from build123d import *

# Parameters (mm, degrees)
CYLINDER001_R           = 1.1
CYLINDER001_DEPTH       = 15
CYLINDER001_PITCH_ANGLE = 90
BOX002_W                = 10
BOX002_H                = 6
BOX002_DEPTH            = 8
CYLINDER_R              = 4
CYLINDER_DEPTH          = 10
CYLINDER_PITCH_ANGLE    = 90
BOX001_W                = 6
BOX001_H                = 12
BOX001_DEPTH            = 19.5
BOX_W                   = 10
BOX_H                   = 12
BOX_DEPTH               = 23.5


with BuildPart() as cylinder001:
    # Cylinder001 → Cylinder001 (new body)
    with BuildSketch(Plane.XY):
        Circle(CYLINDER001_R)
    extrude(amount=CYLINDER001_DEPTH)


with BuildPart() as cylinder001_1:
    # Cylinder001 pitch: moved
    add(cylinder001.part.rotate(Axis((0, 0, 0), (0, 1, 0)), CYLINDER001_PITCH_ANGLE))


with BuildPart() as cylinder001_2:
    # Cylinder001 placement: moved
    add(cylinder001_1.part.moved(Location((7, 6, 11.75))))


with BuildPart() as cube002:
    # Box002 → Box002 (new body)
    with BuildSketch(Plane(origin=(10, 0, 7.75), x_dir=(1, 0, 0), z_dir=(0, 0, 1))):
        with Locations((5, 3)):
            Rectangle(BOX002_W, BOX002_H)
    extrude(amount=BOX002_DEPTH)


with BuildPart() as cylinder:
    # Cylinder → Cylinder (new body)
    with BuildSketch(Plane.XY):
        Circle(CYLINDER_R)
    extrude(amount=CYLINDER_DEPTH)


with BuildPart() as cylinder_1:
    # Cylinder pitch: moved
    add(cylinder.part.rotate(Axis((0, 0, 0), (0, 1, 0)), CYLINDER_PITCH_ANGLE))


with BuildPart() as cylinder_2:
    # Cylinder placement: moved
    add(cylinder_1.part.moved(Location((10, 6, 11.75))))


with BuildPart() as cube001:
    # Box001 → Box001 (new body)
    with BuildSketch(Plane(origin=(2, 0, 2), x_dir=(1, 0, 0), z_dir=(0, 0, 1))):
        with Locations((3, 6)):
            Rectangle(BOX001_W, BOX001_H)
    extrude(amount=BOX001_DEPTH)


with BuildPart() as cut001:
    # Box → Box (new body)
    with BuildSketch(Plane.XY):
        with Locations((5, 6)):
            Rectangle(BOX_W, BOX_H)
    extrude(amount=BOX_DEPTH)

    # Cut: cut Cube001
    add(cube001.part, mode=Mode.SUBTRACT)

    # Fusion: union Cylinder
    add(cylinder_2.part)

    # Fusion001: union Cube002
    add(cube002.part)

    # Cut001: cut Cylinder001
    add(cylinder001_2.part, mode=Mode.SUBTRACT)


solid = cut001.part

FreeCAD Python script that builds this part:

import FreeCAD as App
import Part
import Sketcher

V = App.Vector
Q = App.Units.Quantity

doc = App.newDocument("Part")
body = doc.addObject("PartDesign::Body", "Body")

sketch1 = doc.addObject("Sketcher::SketchObject", "Sketch")
body.addObject(sketch1)
sketch1.AttachmentSupport = (doc.XY_Plane, [""])
sketch1.MapMode = "FlatFace"
sketch1.addGeometry(Part.Circle(V(0, 0, 0), V(0, 0, 1), 1.1), False)
sketch1.addConstraint(Sketcher.Constraint("Coincident", 0, 3, -1, 1))
sketch1.addConstraint(Sketcher.Constraint("Diameter", 0, Q("2.2 mm")))
pad1 = doc.addObject("PartDesign::Pad", "Pad")
body.addObject(pad1)
pad1.Profile = sketch1
pad1.Length = 15
body2 = doc.addObject("PartDesign::Body", "Body001")
doc.recompute()

body.Placement = App.Placement(V(0, 0, 0), App.Rotation(V(0, 1, 0), 90))
boolean = doc.addObject("PartDesign::Boolean", "Boolean")
body2.addObject(boolean)
boolean.Type = "Fuse"
boolean.addObjects([body])
body3 = doc.addObject("PartDesign::Body", "Body002")
doc.recompute()

body2.Placement = App.Placement(V(7, 6, 11.75), App.Rotation(V(0, 0, 1), 0))
boolean2 = doc.addObject("PartDesign::Boolean", "Boolean001")
body3.addObject(boolean2)
boolean2.Type = "Fuse"
boolean2.addObjects([body2])
body4 = doc.addObject("PartDesign::Body", "Body003")

sketch2 = doc.addObject("Sketcher::SketchObject", "Sketch001")
body4.addObject(sketch2)
sketch2.AttachmentSupport = (doc.getObject("XY_Plane003"), [""])
sketch2.MapMode = "FlatFace"
sketch2.AttachmentOffset = App.Placement(V(0, 0, 7.75), App.Rotation())
sketch2.addGeometry(Part.LineSegment(V(10, 6, 0), V(10, 0, 0)), False)
sketch2.addGeometry(Part.LineSegment(V(10, 0, 0), V(20, 0, 0)), False)
sketch2.addGeometry(Part.LineSegment(V(20, 0, 0), V(20, 6, 0)), False)
sketch2.addGeometry(Part.LineSegment(V(20, 6, 0), V(10, 6, 0)), False)
sketch2.addConstraint(Sketcher.Constraint("Coincident", 0, 2, 1, 1))
sketch2.addConstraint(Sketcher.Constraint("Coincident", 1, 2, 2, 1))
sketch2.addConstraint(Sketcher.Constraint("Coincident", 2, 2, 3, 1))
sketch2.addConstraint(Sketcher.Constraint("Coincident", 3, 2, 0, 1))
sketch2.addConstraint(Sketcher.Constraint("Vertical", 0))
sketch2.addConstraint(Sketcher.Constraint("Horizontal", 1))
sketch2.addConstraint(Sketcher.Constraint("Vertical", 2))
sketch2.addConstraint(Sketcher.Constraint("Horizontal", 3))
sketch2.addConstraint(Sketcher.Constraint("PointOnObject", 0, 2, -1))
sketch2.addConstraint(Sketcher.Constraint("DistanceX", 1, 1, 1, 2, Q("10 mm")))
sketch2.addConstraint(Sketcher.Constraint("DistanceY", 0, 2, 0, 1, Q("6 mm")))
sketch2.addConstraint(Sketcher.Constraint("DistanceX", -1, 1, 0, 2, Q("10 mm")))
pad2 = doc.addObject("PartDesign::Pad", "Pad001")
body4.addObject(pad2)
pad2.Profile = sketch2
pad2.Length = 8
body5 = doc.addObject("PartDesign::Body", "Body004")

sketch3 = doc.addObject("Sketcher::SketchObject", "Sketch002")
body5.addObject(sketch3)
sketch3.AttachmentSupport = (doc.getObject("XY_Plane004"), [""])
sketch3.MapMode = "FlatFace"
sketch3.addGeometry(Part.Circle(V(0, 0, 0), V(0, 0, 1), 4), False)
sketch3.addConstraint(Sketcher.Constraint("Coincident", 0, 3, -1, 1))
sketch3.addConstraint(Sketcher.Constraint("Diameter", 0, Q("8 mm")))
pad3 = doc.addObject("PartDesign::Pad", "Pad002")
body5.addObject(pad3)
pad3.Profile = sketch3
pad3.Length = 10
body6 = doc.addObject("PartDesign::Body", "Body005")
doc.recompute()

body5.Placement = App.Placement(V(0, 0, 0), App.Rotation(V(0, 1, 0), 90))
boolean3 = doc.addObject("PartDesign::Boolean", "Boolean002")
body6.addObject(boolean3)
boolean3.Type = "Fuse"
boolean3.addObjects([body5])
body7 = doc.addObject("PartDesign::Body", "Body006")
doc.recompute()

body6.Placement = App.Placement(V(10, 6, 11.75), App.Rotation(V(0, 0, 1), 0))
boolean4 = doc.addObject("PartDesign::Boolean", "Boolean003")
body7.addObject(boolean4)
boolean4.Type = "Fuse"
boolean4.addObjects([body6])
body8 = doc.addObject("PartDesign::Body", "Body007")

sketch4 = doc.addObject("Sketcher::SketchObject", "Sketch003")
body8.addObject(sketch4)
sketch4.AttachmentSupport = (doc.getObject("XY_Plane007"), [""])
sketch4.MapMode = "FlatFace"
sketch4.AttachmentOffset = App.Placement(V(0, 0, 2), App.Rotation())
sketch4.addGeometry(Part.LineSegment(V(2, 12, 0), V(2, 0, 0)), False)
sketch4.addGeometry(Part.LineSegment(V(2, 0, 0), V(8, 0, 0)), False)
sketch4.addGeometry(Part.LineSegment(V(8, 0, 0), V(8, 12, 0)), False)
sketch4.addGeometry(Part.LineSegment(V(8, 12, 0), V(2, 12, 0)), False)
sketch4.addConstraint(Sketcher.Constraint("Coincident", 0, 2, 1, 1))
sketch4.addConstraint(Sketcher.Constraint("Coincident", 1, 2, 2, 1))
sketch4.addConstraint(Sketcher.Constraint("Coincident", 2, 2, 3, 1))
sketch4.addConstraint(Sketcher.Constraint("Coincident", 3, 2, 0, 1))
sketch4.addConstraint(Sketcher.Constraint("Vertical", 0))
sketch4.addConstraint(Sketcher.Constraint("Horizontal", 1))
sketch4.addConstraint(Sketcher.Constraint("Vertical", 2))
sketch4.addConstraint(Sketcher.Constraint("Horizontal", 3))
sketch4.addConstraint(Sketcher.Constraint("PointOnObject", 0, 2, -1))
sketch4.addConstraint(Sketcher.Constraint("DistanceX", 1, 1, 1, 2, Q("6 mm")))
sketch4.addConstraint(Sketcher.Constraint("DistanceY", 0, 2, 0, 1, Q("12 mm")))
sketch4.addConstraint(Sketcher.Constraint("DistanceX", -1, 1, 0, 2, Q("2 mm")))
pad4 = doc.addObject("PartDesign::Pad", "Pad003")
body8.addObject(pad4)
pad4.Profile = sketch4
pad4.Length = 19.5
body9 = doc.addObject("PartDesign::Body", "Body008")

sketch5 = doc.addObject("Sketcher::SketchObject", "Sketch004")
body9.addObject(sketch5)
sketch5.AttachmentSupport = (doc.getObject("XY_Plane008"), [""])
sketch5.MapMode = "FlatFace"
sketch5.addGeometry(Part.LineSegment(V(0, 12, 0), V(0, 0, 0)), False)
sketch5.addGeometry(Part.LineSegment(V(0, 0, 0), V(10, 0, 0)), False)
sketch5.addGeometry(Part.LineSegment(V(10, 0, 0), V(10, 12, 0)), False)
sketch5.addGeometry(Part.LineSegment(V(10, 12, 0), V(0, 12, 0)), False)
sketch5.addConstraint(Sketcher.Constraint("Coincident", 0, 2, 1, 1))
sketch5.addConstraint(Sketcher.Constraint("Coincident", 1, 2, 2, 1))
sketch5.addConstraint(Sketcher.Constraint("Coincident", 2, 2, 3, 1))
sketch5.addConstraint(Sketcher.Constraint("Coincident", 3, 2, 0, 1))
sketch5.addConstraint(Sketcher.Constraint("Vertical", 0))
sketch5.addConstraint(Sketcher.Constraint("Horizontal", 1))
sketch5.addConstraint(Sketcher.Constraint("Vertical", 2))
sketch5.addConstraint(Sketcher.Constraint("Horizontal", 3))
sketch5.addConstraint(Sketcher.Constraint("Coincident", 0, 2, -1, 1))
sketch5.addConstraint(Sketcher.Constraint("DistanceX", 1, 1, 1, 2, Q("10 mm")))
sketch5.addConstraint(Sketcher.Constraint("DistanceY", 0, 2, 0, 1, Q("12 mm")))
pad5 = doc.addObject("PartDesign::Pad", "Pad004")
body9.addObject(pad5)
pad5.Profile = sketch5
pad5.Length = 23.5
doc.recompute()

boolean5 = doc.addObject("PartDesign::Boolean", "Boolean004")
body9.addObject(boolean5)
boolean5.Type = "Cut"
boolean5.addObjects([body8])
doc.recompute()

boolean6 = doc.addObject("PartDesign::Boolean", "Boolean005")
body9.addObject(boolean6)
boolean6.Type = "Fuse"
boolean6.addObjects([body7])
doc.recompute()

boolean7 = doc.addObject("PartDesign::Boolean", "Boolean006")
body9.addObject(boolean7)
boolean7.Type = "Fuse"
boolean7.addObjects([body4])
doc.recompute()

boolean8 = doc.addObject("PartDesign::Boolean", "Boolean007")
body9.addObject(boolean8)
boolean8.Type = "Cut"
boolean8.addObjects([body3])

doc.recompute()
